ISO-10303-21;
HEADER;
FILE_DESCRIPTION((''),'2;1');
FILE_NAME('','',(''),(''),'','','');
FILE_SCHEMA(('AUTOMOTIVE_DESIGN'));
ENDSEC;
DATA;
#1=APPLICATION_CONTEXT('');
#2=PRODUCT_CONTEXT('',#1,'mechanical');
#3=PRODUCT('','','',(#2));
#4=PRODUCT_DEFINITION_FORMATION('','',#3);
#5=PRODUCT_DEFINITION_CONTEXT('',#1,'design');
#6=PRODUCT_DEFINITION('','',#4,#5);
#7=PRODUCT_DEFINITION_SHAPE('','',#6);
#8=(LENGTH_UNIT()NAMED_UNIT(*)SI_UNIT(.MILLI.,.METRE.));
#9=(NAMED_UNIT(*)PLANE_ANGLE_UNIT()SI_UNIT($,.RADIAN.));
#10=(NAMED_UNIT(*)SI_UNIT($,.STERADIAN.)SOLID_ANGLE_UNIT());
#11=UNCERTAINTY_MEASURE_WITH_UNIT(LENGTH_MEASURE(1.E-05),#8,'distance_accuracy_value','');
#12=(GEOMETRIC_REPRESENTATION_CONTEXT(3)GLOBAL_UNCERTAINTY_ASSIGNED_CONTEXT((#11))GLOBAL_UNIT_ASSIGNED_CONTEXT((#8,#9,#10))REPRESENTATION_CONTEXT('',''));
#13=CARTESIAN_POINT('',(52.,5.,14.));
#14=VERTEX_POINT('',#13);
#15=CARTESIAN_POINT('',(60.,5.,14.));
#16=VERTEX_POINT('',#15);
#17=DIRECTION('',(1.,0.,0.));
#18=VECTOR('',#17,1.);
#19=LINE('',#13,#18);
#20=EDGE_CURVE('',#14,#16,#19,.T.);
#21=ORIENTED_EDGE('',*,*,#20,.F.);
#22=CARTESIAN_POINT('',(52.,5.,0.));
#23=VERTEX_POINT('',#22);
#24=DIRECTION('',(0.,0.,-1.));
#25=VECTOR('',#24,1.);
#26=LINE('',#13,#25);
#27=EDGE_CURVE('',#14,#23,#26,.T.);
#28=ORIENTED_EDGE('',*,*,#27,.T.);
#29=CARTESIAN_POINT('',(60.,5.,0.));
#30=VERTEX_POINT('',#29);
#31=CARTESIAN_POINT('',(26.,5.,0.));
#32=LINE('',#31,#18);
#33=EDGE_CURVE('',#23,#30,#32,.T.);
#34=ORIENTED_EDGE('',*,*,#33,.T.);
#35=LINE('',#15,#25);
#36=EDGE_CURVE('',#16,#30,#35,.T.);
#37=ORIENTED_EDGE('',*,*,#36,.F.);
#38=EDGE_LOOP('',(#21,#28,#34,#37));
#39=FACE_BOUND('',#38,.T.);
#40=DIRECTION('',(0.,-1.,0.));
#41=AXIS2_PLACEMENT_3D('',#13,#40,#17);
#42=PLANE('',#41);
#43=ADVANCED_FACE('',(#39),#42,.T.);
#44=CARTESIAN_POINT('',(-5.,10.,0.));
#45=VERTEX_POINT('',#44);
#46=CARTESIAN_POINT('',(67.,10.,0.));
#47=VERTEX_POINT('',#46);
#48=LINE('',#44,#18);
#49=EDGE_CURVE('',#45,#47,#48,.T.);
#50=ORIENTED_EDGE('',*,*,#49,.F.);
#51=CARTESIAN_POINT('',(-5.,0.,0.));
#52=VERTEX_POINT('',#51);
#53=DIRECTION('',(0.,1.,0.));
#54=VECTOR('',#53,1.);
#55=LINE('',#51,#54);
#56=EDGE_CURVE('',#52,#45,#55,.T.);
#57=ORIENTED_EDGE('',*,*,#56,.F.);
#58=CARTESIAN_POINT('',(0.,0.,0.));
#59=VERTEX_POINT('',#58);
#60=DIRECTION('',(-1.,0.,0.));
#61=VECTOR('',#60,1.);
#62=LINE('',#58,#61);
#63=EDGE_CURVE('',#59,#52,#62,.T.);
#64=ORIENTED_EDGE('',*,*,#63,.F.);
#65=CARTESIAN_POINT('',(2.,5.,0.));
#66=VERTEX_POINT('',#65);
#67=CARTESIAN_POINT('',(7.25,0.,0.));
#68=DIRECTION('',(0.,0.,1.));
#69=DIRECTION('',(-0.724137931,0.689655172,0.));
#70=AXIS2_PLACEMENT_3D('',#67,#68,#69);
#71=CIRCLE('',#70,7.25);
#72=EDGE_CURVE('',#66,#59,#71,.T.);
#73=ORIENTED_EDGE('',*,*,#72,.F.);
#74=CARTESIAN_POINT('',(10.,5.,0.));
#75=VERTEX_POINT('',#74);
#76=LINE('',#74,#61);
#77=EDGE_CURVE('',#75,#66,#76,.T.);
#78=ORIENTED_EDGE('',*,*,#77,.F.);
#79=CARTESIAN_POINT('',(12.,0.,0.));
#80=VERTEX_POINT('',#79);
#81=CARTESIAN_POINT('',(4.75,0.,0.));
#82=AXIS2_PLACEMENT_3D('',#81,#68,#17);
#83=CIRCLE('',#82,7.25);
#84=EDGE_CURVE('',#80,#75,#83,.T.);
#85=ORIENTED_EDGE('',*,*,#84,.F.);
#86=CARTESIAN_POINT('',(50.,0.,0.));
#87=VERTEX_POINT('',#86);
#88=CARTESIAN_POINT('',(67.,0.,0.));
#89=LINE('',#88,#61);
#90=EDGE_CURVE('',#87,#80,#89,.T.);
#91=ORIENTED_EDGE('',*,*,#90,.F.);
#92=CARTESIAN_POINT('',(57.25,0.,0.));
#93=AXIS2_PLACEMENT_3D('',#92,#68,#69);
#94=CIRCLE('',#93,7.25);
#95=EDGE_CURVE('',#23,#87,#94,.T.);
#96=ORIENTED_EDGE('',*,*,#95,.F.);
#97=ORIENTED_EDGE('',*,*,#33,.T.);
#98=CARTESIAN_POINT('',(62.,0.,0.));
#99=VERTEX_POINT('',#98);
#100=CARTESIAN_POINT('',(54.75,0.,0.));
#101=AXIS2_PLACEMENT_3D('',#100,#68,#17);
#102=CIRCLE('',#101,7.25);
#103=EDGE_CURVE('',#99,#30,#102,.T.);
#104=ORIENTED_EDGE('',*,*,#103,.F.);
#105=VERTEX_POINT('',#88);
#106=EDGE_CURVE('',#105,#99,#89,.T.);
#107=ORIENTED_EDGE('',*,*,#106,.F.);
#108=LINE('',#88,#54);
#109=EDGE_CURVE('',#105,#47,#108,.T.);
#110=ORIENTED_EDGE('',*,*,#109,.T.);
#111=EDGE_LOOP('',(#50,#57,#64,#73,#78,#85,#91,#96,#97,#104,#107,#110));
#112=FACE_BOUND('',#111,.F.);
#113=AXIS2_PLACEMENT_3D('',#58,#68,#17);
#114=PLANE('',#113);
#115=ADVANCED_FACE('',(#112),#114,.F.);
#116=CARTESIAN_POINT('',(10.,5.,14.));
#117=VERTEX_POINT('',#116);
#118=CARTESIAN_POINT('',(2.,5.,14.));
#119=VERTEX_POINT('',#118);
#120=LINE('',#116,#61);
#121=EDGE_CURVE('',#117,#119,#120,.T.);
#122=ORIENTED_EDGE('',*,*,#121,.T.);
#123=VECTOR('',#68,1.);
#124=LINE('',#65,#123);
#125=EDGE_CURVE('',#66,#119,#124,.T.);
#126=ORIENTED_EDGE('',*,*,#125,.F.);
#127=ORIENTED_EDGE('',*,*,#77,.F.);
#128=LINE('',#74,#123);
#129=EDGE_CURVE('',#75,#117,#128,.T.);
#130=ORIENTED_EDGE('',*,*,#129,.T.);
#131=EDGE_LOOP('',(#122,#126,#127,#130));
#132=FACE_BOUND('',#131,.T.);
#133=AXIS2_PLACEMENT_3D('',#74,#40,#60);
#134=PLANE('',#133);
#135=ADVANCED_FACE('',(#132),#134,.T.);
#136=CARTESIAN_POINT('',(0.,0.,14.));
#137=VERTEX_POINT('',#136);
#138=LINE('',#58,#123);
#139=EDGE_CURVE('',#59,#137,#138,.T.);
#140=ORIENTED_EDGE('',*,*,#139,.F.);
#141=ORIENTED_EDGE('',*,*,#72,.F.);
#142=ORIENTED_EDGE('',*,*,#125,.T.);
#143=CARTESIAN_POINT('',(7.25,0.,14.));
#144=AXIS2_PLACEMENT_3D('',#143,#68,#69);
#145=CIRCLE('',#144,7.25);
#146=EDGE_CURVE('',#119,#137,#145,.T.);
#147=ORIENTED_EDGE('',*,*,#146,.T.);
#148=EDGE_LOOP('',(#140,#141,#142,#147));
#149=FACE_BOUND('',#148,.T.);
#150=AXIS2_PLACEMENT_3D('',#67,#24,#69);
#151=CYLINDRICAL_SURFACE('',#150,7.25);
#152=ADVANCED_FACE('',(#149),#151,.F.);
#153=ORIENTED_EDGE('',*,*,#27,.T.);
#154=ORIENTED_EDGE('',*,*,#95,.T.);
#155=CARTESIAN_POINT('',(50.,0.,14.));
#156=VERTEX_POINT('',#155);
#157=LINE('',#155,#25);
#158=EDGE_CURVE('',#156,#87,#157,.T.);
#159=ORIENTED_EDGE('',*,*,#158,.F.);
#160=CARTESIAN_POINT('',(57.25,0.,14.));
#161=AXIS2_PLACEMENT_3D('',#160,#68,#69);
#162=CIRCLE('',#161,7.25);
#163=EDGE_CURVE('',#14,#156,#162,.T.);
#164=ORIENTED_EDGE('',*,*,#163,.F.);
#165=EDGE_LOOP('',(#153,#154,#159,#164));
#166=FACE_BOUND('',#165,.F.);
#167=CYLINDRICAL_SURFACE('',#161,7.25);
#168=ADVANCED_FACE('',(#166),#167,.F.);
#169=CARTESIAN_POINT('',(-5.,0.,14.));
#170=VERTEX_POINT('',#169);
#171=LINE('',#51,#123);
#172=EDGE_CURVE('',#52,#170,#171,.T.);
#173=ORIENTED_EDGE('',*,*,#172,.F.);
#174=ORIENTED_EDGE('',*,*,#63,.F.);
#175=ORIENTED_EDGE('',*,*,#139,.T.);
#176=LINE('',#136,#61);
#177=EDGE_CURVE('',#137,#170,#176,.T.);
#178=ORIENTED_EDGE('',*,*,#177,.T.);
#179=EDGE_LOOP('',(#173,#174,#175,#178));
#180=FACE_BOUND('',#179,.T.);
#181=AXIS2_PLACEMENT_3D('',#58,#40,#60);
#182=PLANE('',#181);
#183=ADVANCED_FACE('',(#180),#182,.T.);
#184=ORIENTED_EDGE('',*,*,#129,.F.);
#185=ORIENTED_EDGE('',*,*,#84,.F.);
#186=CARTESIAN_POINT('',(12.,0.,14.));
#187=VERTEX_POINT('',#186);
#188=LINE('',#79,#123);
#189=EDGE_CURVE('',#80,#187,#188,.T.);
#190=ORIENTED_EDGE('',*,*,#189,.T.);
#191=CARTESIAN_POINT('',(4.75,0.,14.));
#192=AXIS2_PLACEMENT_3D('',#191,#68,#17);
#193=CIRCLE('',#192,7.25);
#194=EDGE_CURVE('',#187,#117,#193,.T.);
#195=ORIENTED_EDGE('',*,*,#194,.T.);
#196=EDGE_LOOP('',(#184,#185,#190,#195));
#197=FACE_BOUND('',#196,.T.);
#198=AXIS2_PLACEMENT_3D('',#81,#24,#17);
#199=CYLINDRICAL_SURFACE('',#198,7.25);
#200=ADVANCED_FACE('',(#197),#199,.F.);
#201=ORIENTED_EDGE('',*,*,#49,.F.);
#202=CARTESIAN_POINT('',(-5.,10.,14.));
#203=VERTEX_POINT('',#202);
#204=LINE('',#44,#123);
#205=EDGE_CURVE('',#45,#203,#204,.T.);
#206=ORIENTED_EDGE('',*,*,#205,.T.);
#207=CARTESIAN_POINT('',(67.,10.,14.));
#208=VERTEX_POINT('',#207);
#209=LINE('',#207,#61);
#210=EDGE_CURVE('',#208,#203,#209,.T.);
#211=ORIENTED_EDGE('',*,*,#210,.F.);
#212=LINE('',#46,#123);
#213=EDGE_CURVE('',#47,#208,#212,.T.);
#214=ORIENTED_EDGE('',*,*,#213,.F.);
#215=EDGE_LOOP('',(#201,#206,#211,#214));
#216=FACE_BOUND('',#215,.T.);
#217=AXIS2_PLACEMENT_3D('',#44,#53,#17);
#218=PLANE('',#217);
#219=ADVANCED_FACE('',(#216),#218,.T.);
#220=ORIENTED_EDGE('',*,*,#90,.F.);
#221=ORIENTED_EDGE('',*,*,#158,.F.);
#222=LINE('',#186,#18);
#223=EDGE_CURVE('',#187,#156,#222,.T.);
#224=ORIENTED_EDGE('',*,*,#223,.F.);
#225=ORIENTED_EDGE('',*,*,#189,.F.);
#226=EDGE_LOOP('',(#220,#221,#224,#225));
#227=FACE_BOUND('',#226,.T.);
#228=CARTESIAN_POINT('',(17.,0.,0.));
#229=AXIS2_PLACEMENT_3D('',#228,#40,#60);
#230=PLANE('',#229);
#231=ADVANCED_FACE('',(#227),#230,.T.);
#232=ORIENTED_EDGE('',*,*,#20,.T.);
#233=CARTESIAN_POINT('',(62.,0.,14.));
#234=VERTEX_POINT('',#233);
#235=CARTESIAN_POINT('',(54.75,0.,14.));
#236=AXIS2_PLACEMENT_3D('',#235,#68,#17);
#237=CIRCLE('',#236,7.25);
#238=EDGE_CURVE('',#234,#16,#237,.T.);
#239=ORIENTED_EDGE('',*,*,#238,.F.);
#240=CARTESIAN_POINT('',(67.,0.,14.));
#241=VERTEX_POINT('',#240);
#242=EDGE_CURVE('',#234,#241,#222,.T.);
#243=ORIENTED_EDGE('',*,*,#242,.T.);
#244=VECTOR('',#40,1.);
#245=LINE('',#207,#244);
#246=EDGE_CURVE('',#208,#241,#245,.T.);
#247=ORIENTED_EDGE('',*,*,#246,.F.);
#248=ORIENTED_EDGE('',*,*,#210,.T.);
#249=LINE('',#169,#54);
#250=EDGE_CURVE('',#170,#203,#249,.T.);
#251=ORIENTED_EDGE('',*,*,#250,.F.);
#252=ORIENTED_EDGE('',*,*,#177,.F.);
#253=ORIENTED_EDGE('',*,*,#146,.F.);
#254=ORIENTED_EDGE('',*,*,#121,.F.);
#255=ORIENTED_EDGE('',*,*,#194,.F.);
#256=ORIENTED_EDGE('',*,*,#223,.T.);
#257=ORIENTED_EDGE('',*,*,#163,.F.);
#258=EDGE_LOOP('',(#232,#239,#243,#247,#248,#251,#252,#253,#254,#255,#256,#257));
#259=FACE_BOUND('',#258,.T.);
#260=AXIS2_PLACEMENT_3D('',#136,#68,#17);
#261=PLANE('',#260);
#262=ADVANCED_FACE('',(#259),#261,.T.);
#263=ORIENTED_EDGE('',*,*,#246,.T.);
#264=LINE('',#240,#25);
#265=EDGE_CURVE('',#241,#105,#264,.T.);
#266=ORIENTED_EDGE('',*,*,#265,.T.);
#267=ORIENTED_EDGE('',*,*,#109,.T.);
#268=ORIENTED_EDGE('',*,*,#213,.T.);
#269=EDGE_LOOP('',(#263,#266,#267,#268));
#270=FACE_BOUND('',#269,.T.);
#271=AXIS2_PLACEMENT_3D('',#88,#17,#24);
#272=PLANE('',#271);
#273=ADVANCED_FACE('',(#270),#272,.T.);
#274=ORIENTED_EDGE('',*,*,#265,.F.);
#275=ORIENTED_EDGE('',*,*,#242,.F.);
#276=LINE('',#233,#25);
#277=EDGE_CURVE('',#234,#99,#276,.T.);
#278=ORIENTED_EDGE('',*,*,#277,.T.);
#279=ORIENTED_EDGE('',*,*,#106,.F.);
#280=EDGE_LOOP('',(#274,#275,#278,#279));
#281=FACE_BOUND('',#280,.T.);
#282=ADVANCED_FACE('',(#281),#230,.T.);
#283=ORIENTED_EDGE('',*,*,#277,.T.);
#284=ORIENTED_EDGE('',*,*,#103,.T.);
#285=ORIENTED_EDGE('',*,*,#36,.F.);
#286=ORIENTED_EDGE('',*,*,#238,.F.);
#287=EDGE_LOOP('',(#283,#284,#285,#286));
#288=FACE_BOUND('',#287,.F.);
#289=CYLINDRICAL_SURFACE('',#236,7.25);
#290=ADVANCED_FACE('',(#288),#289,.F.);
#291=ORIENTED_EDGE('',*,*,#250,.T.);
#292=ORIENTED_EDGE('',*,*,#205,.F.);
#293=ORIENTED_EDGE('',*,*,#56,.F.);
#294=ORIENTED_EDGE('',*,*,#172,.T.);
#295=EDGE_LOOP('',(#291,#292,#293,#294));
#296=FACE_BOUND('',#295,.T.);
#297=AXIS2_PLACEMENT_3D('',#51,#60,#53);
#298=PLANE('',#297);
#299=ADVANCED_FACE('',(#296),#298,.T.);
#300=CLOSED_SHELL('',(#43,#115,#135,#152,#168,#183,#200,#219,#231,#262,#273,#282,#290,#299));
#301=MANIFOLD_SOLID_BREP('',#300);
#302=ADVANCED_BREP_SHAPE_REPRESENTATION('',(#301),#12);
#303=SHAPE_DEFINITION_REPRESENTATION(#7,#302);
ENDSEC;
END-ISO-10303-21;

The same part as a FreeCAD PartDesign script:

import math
import FreeCAD as App
import Part
import Sketcher
from FreeCAD import Vector
Q = App.Units.Quantity

doc = App.newDocument("Part")
body = doc.addObject("PartDesign::Body", "Body")

# Sketch on XY plane
sketch1 = body.newObject("Sketcher::SketchObject", "Sketch")
sketch1.AttachmentSupport = (doc.getObject("XY_Plane"), [""])
sketch1.MapMode = "FlatFace"
sketch1.addGeometry([
    Part.LineSegment(Vector(2, 5, 0), Vector(10, 5, 0)),  # 0
    Part.ArcOfCircle(Part.Circle(Vector(5, 0, 0), Vector(0, 0, 1), 7), math.radians(0), math.radians(44)),  # 1
    Part.LineSegment(Vector(12, 0, 0), Vector(17, 0, 0)),  # 2
    Part.LineSegment(Vector(17, 0, 0), Vector(17, 10, 0)),  # 3
    Part.LineSegment(Vector(17, 10, 0), Vector(-5, 10, 0)),  # 4
    Part.LineSegment(Vector(-5, 10, 0), Vector(-5, 0, 0)),  # 5
    Part.LineSegment(Vector(-5, 0, 0), Vector(0, 0, 0)),  # 6
    Part.ArcOfCircle(Part.Circle(Vector(7, 0, 0), Vector(0, 0, 1), 7), math.radians(136), math.radians(180)),  # 7
], False)
sketch1.addConstraint([
    Sketcher.Constraint("Coincident", 0, 2, 1, 2),
    Sketcher.Constraint("Coincident", 1, 1, 2, 1),
    Sketcher.Constraint("Coincident", 2, 2, 3, 1),
    Sketcher.Constraint("Coincident", 3, 2, 4, 1),
    Sketcher.Constraint("Coincident", 4, 2, 5, 1),
    Sketcher.Constraint("Coincident", 5, 2, 6, 1),
    Sketcher.Constraint("Coincident", 6, 2, 7, 2),
    Sketcher.Constraint("Coincident", 7, 1, 0, 1),
    Sketcher.Constraint("Horizontal", 0),
    Sketcher.Constraint("Horizontal", 2),
    Sketcher.Constraint("Vertical", 3),
    Sketcher.Constraint("Horizontal", 4),
    Sketcher.Constraint("Vertical", 5),
    Sketcher.Constraint("Horizontal", 6),
    Sketcher.Constraint("Coincident", 6, 2, -1, 1),
    Sketcher.Constraint("Equal", 1, 7),
    Sketcher.Constraint("PointOnObject", 1, 3, -1),
    Sketcher.Constraint("PointOnObject", 7, 3, -1),
    Sketcher.Constraint("PointOnObject", 1, 1, -1),
    Sketcher.Constraint("Equal", 2, 6),
    Sketcher.Constraint("DistanceX", 0, 1, 0, 2, Q("8 mm")),
    Sketcher.Constraint("DistanceX", 2, 1, 2, 2, Q("5 mm")),
    Sketcher.Constraint("DistanceX", 4, 2, 4, 1, Q("22 mm")),
    Sketcher.Constraint("DistanceY", 3, 1, 3, 2, Q("10 mm")),
    Sketcher.Constraint("Radius", 1, Q("7.25 mm")),
])
pad1 = body.newObject("PartDesign::Pad", "Pad")
pad1.Profile = sketch1
pad1.Length = 14

# Sketch on YZ plane
sketch2 = body.newObject("Sketcher::SketchObject", "Sketch001")
sketch2.AttachmentSupport = (doc.getObject("YZ_Plane"), [""])
sketch2.MapMode = "FlatFace"
sketch2.AttachmentOffset = App.Placement(Vector(0, 0, 17), App.Rotation())
sketch2.addGeometry([
    Part.LineSegment(Vector(10, 0, 0), Vector(10, 14, 0)),
    Part.LineSegment(Vector(10, 14, 0), Vector(0, 14, 0)),
    Part.LineSegment(Vector(0, 14, 0), Vector(0, 0, 0)),
    Part.LineSegment(Vector(0, 0, 0), Vector(10, 0, 0)),
], False)
sketch2.addConstraint([
    Sketcher.Constraint("Coincident", 0, 2, 1, 1),
    Sketcher.Constraint("Coincident", 1, 2, 2, 1),
    Sketcher.Constraint("Coincident", 2, 2, 3, 1),
    Sketcher.Constraint("Coincident", 3, 2, 0, 1),
    Sketcher.Constraint("Vertical", 0),
    Sketcher.Constraint("Horizontal", 1),
    Sketcher.Constraint("Vertical", 2),
    Sketcher.Constraint("Horizontal", 3),
    Sketcher.Constraint("Coincident", 2, 2, -1, 1),
    Sketcher.Constraint("DistanceX", 1, 2, 1, 1, Q("10 mm")),
    Sketcher.Constraint("DistanceY", 0, 1, 0, 2, Q("14 mm")),
])
pad2 = body.newObject("PartDesign::Pad", "Pad001")
pad2.Profile = sketch2
pad2.Length = 50

# Sketch on XY plane
sketch3 = body.newObject("Sketcher::SketchObject", "Sketch002")
sketch3.AttachmentSupport = (doc.getObject("XY_Plane"), [""])
sketch3.MapMode = "FlatFace"
sketch3.AttachmentOffset = App.Placement(Vector(0, 0, 14), App.Rotation())
sketch3.addGeometry([
    Part.ArcOfCircle(Part.Circle(Vector(57, 0, 0), Vector(0, 0, 1), 7), math.radians(136), math.radians(180)),
    Part.LineSegment(Vector(50, 0, 0), Vector(62, 0, 0)),
    Part.ArcOfCircle(Part.Circle(Vector(55, 0, 0), Vector(0, 0, 1), 7), math.radians(0), math.radians(44)),
    Part.LineSegment(Vector(60, 5, 0), Vector(52, 5, 0)),
], False)
sketch3.addConstraint([
    Sketcher.Constraint("Coincident", 0, 2, 1, 1),
    Sketcher.Constraint("Coincident", 1, 2, 2, 1),
    Sketcher.Constraint("Coincident", 2, 2, 3, 1),
    Sketcher.Constraint("Coincident", 3, 2, 0, 1),
    Sketcher.Constraint("Horizontal", 1),
    Sketcher.Constraint("Horizontal", 3),
    Sketcher.Constraint("Equal", 0, 2),
    Sketcher.Constraint("PointOnObject", 0, 3, -1),
    Sketcher.Constraint("PointOnObject", 2, 3, -1),
    Sketcher.Constraint("PointOnObject", 0, 2, -1),
    Sketcher.Constraint("DistanceX", 3, 2, 3, 1, Q("8 mm")),
    Sketcher.Constraint("Radius", 0, Q("7.25 mm")),
    Sketcher.Constraint("DistanceX", -1, 1, 0, 2, Q("50 mm")),
    Sketcher.Constraint("DistanceY", -1, 1, 2, 2, Q("5 mm")),
])
pocket1 = body.newObject("PartDesign::Pocket", "Pocket")
pocket1.Profile = sketch3
pocket1.Type = "ThroughAll"

doc.recompute()
